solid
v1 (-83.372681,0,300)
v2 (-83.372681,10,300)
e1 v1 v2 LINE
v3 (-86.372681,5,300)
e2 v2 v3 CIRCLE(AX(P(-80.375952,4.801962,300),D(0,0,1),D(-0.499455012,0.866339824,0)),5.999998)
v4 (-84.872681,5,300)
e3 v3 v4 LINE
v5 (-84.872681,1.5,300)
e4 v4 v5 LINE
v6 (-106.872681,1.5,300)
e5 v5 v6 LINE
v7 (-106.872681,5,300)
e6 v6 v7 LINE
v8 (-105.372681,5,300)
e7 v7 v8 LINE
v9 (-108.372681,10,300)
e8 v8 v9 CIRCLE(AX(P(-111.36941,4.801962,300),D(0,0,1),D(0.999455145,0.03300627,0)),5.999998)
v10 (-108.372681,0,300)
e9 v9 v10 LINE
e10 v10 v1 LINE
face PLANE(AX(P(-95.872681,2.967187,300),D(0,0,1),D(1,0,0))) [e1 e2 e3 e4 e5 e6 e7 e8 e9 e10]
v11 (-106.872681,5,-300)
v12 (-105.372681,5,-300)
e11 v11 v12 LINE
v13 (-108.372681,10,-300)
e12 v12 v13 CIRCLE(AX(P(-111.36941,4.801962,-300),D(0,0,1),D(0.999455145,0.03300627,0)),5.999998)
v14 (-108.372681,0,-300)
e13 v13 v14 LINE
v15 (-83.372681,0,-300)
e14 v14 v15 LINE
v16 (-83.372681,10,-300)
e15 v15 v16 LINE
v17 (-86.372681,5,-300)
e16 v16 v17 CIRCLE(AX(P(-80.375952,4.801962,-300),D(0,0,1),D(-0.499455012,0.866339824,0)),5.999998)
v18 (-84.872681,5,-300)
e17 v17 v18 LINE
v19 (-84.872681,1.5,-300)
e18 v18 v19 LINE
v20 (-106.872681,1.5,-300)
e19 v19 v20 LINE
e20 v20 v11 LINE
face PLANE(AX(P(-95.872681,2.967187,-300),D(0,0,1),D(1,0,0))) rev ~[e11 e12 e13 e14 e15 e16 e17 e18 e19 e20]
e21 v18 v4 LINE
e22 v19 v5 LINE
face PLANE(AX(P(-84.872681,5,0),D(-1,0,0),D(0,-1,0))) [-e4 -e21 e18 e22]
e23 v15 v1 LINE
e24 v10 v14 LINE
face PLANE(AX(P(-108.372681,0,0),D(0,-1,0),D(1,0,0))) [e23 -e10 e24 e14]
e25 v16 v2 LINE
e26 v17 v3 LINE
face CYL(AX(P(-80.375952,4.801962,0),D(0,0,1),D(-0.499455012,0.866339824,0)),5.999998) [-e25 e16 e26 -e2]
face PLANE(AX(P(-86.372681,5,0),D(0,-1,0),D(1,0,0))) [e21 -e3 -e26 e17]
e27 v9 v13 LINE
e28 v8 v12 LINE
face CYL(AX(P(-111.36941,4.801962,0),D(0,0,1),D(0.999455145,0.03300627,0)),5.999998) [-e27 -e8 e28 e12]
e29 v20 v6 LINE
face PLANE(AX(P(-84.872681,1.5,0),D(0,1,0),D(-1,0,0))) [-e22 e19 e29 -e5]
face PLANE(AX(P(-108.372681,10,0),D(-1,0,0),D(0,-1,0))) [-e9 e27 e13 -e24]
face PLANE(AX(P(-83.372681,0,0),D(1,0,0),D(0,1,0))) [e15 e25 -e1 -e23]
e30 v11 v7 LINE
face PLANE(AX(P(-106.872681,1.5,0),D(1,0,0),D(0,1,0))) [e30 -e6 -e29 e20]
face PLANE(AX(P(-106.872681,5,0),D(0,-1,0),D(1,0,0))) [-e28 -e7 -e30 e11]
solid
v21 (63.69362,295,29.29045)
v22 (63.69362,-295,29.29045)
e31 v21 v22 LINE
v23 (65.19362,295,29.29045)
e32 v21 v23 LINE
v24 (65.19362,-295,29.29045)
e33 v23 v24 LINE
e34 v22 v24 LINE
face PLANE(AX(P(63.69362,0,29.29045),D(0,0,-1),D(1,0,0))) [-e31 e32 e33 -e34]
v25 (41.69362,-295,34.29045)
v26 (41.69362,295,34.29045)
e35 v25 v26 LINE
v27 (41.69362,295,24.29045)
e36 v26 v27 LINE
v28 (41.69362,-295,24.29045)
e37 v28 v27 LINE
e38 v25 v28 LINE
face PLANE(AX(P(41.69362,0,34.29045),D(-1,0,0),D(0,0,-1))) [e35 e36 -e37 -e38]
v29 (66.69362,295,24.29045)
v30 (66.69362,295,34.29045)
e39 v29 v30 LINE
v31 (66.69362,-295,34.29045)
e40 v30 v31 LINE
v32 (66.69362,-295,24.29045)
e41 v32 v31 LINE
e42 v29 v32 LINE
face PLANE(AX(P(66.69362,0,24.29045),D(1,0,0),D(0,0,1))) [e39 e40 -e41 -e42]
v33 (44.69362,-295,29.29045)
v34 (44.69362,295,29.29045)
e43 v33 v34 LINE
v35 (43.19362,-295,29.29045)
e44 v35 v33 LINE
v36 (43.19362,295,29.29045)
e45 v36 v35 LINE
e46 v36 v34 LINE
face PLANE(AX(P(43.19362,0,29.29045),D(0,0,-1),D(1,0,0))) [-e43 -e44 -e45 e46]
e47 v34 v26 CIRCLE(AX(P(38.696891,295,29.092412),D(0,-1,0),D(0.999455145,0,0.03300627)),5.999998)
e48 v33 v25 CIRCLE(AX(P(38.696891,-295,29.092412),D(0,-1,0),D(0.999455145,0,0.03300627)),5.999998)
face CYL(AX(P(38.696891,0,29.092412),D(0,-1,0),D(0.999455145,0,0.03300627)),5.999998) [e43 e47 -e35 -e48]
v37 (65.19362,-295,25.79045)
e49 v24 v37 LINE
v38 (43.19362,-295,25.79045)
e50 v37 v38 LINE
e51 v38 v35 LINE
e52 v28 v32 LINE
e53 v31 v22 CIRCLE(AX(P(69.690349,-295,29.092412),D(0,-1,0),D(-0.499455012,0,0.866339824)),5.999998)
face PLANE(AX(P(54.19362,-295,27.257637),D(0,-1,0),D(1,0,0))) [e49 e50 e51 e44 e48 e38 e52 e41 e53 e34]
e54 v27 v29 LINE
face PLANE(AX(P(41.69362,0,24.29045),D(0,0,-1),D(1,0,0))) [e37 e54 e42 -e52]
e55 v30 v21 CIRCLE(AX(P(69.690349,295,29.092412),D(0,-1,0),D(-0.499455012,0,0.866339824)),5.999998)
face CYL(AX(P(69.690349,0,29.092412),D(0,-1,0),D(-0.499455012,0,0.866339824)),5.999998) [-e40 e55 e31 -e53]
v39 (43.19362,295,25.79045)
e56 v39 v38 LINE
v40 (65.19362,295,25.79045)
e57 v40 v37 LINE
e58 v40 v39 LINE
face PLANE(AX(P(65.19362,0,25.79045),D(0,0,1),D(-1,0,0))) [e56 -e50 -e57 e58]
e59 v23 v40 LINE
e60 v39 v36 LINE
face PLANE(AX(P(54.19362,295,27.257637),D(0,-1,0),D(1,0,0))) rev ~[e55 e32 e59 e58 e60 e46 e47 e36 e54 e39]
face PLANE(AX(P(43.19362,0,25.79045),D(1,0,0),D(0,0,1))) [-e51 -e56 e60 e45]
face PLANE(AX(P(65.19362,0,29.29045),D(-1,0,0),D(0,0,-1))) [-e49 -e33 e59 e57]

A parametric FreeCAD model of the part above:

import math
import FreeCAD as App
import Part
import Sketcher

V = App.Vector

doc = App.newDocument("Part")
body = doc.addObject("PartDesign::Body", "Body")

sketch1 = body.newObject("Sketcher::SketchObject", "Sketch")
sketch1.AttachmentSupport = (doc.getObject("XY_Plane"), [""])
sketch1.MapMode = "FlatFace"
sketch1.addGeometry([
    Part.LineSegment(V(-108.4, 0, 0), V(-83.4, 0, 0)),
    Part.LineSegment(V(-83.4, 0, 0), V(-83.4, 10, 0)),
    Part.ArcOfCircle(Part.Circle(V(-80.4, 4.8, 0), V(0, 0, 1), 6), math.radians(120), math.radians(178)),
    Part.LineSegment(V(-86.4, 5, 0), V(-84.9, 5, 0)),
    Part.LineSegment(V(-84.9, 5, 0), V(-84.9, 1.5, 0)),
    Part.LineSegment(V(-84.9, 1.5, 0), V(-106.9, 1.5, 0)),
    Part.LineSegment(V(-106.9, 1.5, 0), V(-106.9, 5, 0)),
    Part.LineSegment(V(-106.9, 5, 0), V(-105.4, 5, 0)),
    Part.ArcOfCircle(Part.Circle(V(-111.4, 4.8, 0), V(0, 0, 1), 6), math.radians(2), math.radians(60)),
    Part.LineSegment(V(-108.4, 10, 0), V(-108.4, 0, 0)),
], False)
sketch1.addConstraint([
    Sketcher.Constraint("Coincident", 0, 2, 1, 1),
    Sketcher.Constraint("Coincident", 1, 2, 2, 1),
    Sketcher.Constraint("Coincident", 2, 2, 3, 1),
    Sketcher.Constraint("Coincident", 3, 2, 4, 1),
    Sketcher.Constraint("Coincident", 4, 2, 5, 1),
    Sketcher.Constraint("Coincident", 5, 2, 6, 1),
    Sketcher.Constraint("Coincident", 6, 2, 7, 1),
    Sketcher.Constraint("Coincident", 7, 2, 8, 1),
    Sketcher.Constraint("Coincident", 8, 2, 9, 1),
    Sketcher.Constraint("Coincident", 9, 2, 0, 1),
    Sketcher.Constraint("Horizontal", 0),
    Sketcher.Constraint("Vertical", 1),
    Sketcher.Constraint("Horizontal", 3),
    Sketcher.Constraint("Vertical", 4),
    Sketcher.Constraint("Horizontal", 5),
    Sketcher.Constraint("Vertical", 6),
    Sketcher.Constraint("Horizontal", 7),
    Sketcher.Constraint("Vertical", 9),
    Sketcher.Constraint("Equal", 2, 8),
    Sketcher.Constraint("PointOnObject", 0, 2, -1),
    Sketcher.Constraint("Horizontal", 2, 3, 8, 3),
    Sketcher.Constraint("Horizontal", 3, 2, 6, 2),
    Sketcher.Constraint("Horizontal", 1, 2, 8, 2),
    Sketcher.Constraint("Equal", 3, 7),
    Sketcher.Constraint("Radius", 2, 5.999998),
    Sketcher.Constraint("DistanceX", 0, 1, 0, 2, 25.0),
    Sketcher.Constraint("DistanceX", 5, 2, 5, 1, 22.0),
    Sketcher.Constraint("DistanceY", 1, 1, 1, 2, 10.0),
    Sketcher.Constraint("DistanceX", 3, 1, 3, 2, 1.5),
    Sketcher.Constraint("DistanceY", 4, 2, 4, 1, 3.5),
    Sketcher.Constraint("DistanceY", -1, 1, 2, 2, 5.0),
    Sketcher.Constraint("DistanceX", 2, 3, -1, 1, 80.375952),
])
pad1 = body.newObject("PartDesign::Pad", "Pad")
pad1.Profile = sketch1
pad1.Length = 600
pad1.Midplane = True
body2 = doc.addObject("PartDesign::Body", "Body001")

sketch2 = body2.newObject("Sketcher::SketchObject", "Sketch001")
sketch2.AttachmentSupport = (doc.getObject("XZ_Plane001"), [""])
sketch2.MapMode = "FlatFace"
sketch2.addGeometry([
    Part.LineSegment(V(41.7, 24.3, 0), V(66.7, 24.3, 0)),
    Part.LineSegment(V(66.7, 24.3, 0), V(66.7, 34.3, 0)),
    Part.ArcOfCircle(Part.Circle(V(69.7, 29.1, 0), V(0, 0, 1), 6), math.radians(120), math.radians(178)),
    Part.LineSegment(V(63.7, 29.3, 0), V(65.2, 29.3, 0)),
    Part.LineSegment(V(65.2, 29.3, 0), V(65.2, 25.8, 0)),
    Part.LineSegment(V(65.2, 25.8, 0), V(43.2, 25.8, 0)),
    Part.LineSegment(V(43.2, 25.8, 0), V(43.2, 29.3, 0)),
    Part.LineSegment(V(43.2, 29.3, 0), V(44.7, 29.3, 0)),
    Part.ArcOfCircle(Part.Circle(V(38.7, 29.1, 0), V(0, 0, 1), 6), math.radians(2), math.radians(60)),
    Part.LineSegment(V(41.7, 34.3, 0), V(41.7, 24.3, 0)),
], False)
sketch2.addConstraint([
    Sketcher.Constraint("Coincident", 0, 2, 1, 1),
    Sketcher.Constraint("Coincident", 1, 2, 2, 1),
    Sketcher.Constraint("Coincident", 2, 2, 3, 1),
    Sketcher.Constraint("Coincident", 3, 2, 4, 1),
    Sketcher.Constraint("Coincident", 4, 2, 5, 1),
    Sketcher.Constraint("Coincident", 5, 2, 6, 1),
    Sketcher.Constraint("Coincident", 6, 2, 7, 1),
    Sketcher.Constraint("Coincident", 7, 2, 8, 1),
    Sketcher.Constraint("Coincident", 8, 2, 9, 1),
    Sketcher.Constraint("Coincident", 9, 2, 0, 1),
    Sketcher.Constraint("Horizontal", 0),
    Sketcher.Constraint("Vertical", 1),
    Sketcher.Constraint("Horizontal", 3),
    Sketcher.Constraint("Vertical", 4),
    Sketcher.Constraint("Horizontal", 5),
    Sketcher.Constraint("Vertical", 6),
    Sketcher.Constraint("Horizontal", 7),
    Sketcher.Constraint("Vertical", 9),
    Sketcher.Constraint("Equal", 2, 8),
    Sketcher.Constraint("Horizontal", 2, 3, 8, 3),
    Sketcher.Constraint("Horizontal", 3, 2, 6, 2),
    Sketcher.Constraint("Horizontal", 1, 2, 8, 2),
    Sketcher.Constraint("Equal", 3, 7),
    Sketcher.Constraint("Radius", 2, 5.999998),
    Sketcher.Constraint("DistanceX", 0, 1, 0, 2, 25.0),
    Sketcher.Constraint("DistanceX", 5, 2, 5, 1, 22.0),
    Sketcher.Constraint("DistanceY", 1, 1, 1, 2, 10.0),
    Sketcher.Constraint("DistanceX", 3, 1, 3, 2, 1.5),
    Sketcher.Constraint("DistanceY", 4, 2, 4, 1, 3.5),
    Sketcher.Constraint("DistanceY", 0, 2, 2, 2, 5.0),
    Sketcher.Constraint("DistanceX", -1, 1, 2, 3, 69.690349),
    Sketcher.Constraint("DistanceY", -1, 1, 0, 2, 24.29045),
])
pad2 = body2.newObject("PartDesign::Pad", "Pad001")
pad2.Profile = sketch2
pad2.Length = 590
pad2.Midplane = True

doc.recompute()
